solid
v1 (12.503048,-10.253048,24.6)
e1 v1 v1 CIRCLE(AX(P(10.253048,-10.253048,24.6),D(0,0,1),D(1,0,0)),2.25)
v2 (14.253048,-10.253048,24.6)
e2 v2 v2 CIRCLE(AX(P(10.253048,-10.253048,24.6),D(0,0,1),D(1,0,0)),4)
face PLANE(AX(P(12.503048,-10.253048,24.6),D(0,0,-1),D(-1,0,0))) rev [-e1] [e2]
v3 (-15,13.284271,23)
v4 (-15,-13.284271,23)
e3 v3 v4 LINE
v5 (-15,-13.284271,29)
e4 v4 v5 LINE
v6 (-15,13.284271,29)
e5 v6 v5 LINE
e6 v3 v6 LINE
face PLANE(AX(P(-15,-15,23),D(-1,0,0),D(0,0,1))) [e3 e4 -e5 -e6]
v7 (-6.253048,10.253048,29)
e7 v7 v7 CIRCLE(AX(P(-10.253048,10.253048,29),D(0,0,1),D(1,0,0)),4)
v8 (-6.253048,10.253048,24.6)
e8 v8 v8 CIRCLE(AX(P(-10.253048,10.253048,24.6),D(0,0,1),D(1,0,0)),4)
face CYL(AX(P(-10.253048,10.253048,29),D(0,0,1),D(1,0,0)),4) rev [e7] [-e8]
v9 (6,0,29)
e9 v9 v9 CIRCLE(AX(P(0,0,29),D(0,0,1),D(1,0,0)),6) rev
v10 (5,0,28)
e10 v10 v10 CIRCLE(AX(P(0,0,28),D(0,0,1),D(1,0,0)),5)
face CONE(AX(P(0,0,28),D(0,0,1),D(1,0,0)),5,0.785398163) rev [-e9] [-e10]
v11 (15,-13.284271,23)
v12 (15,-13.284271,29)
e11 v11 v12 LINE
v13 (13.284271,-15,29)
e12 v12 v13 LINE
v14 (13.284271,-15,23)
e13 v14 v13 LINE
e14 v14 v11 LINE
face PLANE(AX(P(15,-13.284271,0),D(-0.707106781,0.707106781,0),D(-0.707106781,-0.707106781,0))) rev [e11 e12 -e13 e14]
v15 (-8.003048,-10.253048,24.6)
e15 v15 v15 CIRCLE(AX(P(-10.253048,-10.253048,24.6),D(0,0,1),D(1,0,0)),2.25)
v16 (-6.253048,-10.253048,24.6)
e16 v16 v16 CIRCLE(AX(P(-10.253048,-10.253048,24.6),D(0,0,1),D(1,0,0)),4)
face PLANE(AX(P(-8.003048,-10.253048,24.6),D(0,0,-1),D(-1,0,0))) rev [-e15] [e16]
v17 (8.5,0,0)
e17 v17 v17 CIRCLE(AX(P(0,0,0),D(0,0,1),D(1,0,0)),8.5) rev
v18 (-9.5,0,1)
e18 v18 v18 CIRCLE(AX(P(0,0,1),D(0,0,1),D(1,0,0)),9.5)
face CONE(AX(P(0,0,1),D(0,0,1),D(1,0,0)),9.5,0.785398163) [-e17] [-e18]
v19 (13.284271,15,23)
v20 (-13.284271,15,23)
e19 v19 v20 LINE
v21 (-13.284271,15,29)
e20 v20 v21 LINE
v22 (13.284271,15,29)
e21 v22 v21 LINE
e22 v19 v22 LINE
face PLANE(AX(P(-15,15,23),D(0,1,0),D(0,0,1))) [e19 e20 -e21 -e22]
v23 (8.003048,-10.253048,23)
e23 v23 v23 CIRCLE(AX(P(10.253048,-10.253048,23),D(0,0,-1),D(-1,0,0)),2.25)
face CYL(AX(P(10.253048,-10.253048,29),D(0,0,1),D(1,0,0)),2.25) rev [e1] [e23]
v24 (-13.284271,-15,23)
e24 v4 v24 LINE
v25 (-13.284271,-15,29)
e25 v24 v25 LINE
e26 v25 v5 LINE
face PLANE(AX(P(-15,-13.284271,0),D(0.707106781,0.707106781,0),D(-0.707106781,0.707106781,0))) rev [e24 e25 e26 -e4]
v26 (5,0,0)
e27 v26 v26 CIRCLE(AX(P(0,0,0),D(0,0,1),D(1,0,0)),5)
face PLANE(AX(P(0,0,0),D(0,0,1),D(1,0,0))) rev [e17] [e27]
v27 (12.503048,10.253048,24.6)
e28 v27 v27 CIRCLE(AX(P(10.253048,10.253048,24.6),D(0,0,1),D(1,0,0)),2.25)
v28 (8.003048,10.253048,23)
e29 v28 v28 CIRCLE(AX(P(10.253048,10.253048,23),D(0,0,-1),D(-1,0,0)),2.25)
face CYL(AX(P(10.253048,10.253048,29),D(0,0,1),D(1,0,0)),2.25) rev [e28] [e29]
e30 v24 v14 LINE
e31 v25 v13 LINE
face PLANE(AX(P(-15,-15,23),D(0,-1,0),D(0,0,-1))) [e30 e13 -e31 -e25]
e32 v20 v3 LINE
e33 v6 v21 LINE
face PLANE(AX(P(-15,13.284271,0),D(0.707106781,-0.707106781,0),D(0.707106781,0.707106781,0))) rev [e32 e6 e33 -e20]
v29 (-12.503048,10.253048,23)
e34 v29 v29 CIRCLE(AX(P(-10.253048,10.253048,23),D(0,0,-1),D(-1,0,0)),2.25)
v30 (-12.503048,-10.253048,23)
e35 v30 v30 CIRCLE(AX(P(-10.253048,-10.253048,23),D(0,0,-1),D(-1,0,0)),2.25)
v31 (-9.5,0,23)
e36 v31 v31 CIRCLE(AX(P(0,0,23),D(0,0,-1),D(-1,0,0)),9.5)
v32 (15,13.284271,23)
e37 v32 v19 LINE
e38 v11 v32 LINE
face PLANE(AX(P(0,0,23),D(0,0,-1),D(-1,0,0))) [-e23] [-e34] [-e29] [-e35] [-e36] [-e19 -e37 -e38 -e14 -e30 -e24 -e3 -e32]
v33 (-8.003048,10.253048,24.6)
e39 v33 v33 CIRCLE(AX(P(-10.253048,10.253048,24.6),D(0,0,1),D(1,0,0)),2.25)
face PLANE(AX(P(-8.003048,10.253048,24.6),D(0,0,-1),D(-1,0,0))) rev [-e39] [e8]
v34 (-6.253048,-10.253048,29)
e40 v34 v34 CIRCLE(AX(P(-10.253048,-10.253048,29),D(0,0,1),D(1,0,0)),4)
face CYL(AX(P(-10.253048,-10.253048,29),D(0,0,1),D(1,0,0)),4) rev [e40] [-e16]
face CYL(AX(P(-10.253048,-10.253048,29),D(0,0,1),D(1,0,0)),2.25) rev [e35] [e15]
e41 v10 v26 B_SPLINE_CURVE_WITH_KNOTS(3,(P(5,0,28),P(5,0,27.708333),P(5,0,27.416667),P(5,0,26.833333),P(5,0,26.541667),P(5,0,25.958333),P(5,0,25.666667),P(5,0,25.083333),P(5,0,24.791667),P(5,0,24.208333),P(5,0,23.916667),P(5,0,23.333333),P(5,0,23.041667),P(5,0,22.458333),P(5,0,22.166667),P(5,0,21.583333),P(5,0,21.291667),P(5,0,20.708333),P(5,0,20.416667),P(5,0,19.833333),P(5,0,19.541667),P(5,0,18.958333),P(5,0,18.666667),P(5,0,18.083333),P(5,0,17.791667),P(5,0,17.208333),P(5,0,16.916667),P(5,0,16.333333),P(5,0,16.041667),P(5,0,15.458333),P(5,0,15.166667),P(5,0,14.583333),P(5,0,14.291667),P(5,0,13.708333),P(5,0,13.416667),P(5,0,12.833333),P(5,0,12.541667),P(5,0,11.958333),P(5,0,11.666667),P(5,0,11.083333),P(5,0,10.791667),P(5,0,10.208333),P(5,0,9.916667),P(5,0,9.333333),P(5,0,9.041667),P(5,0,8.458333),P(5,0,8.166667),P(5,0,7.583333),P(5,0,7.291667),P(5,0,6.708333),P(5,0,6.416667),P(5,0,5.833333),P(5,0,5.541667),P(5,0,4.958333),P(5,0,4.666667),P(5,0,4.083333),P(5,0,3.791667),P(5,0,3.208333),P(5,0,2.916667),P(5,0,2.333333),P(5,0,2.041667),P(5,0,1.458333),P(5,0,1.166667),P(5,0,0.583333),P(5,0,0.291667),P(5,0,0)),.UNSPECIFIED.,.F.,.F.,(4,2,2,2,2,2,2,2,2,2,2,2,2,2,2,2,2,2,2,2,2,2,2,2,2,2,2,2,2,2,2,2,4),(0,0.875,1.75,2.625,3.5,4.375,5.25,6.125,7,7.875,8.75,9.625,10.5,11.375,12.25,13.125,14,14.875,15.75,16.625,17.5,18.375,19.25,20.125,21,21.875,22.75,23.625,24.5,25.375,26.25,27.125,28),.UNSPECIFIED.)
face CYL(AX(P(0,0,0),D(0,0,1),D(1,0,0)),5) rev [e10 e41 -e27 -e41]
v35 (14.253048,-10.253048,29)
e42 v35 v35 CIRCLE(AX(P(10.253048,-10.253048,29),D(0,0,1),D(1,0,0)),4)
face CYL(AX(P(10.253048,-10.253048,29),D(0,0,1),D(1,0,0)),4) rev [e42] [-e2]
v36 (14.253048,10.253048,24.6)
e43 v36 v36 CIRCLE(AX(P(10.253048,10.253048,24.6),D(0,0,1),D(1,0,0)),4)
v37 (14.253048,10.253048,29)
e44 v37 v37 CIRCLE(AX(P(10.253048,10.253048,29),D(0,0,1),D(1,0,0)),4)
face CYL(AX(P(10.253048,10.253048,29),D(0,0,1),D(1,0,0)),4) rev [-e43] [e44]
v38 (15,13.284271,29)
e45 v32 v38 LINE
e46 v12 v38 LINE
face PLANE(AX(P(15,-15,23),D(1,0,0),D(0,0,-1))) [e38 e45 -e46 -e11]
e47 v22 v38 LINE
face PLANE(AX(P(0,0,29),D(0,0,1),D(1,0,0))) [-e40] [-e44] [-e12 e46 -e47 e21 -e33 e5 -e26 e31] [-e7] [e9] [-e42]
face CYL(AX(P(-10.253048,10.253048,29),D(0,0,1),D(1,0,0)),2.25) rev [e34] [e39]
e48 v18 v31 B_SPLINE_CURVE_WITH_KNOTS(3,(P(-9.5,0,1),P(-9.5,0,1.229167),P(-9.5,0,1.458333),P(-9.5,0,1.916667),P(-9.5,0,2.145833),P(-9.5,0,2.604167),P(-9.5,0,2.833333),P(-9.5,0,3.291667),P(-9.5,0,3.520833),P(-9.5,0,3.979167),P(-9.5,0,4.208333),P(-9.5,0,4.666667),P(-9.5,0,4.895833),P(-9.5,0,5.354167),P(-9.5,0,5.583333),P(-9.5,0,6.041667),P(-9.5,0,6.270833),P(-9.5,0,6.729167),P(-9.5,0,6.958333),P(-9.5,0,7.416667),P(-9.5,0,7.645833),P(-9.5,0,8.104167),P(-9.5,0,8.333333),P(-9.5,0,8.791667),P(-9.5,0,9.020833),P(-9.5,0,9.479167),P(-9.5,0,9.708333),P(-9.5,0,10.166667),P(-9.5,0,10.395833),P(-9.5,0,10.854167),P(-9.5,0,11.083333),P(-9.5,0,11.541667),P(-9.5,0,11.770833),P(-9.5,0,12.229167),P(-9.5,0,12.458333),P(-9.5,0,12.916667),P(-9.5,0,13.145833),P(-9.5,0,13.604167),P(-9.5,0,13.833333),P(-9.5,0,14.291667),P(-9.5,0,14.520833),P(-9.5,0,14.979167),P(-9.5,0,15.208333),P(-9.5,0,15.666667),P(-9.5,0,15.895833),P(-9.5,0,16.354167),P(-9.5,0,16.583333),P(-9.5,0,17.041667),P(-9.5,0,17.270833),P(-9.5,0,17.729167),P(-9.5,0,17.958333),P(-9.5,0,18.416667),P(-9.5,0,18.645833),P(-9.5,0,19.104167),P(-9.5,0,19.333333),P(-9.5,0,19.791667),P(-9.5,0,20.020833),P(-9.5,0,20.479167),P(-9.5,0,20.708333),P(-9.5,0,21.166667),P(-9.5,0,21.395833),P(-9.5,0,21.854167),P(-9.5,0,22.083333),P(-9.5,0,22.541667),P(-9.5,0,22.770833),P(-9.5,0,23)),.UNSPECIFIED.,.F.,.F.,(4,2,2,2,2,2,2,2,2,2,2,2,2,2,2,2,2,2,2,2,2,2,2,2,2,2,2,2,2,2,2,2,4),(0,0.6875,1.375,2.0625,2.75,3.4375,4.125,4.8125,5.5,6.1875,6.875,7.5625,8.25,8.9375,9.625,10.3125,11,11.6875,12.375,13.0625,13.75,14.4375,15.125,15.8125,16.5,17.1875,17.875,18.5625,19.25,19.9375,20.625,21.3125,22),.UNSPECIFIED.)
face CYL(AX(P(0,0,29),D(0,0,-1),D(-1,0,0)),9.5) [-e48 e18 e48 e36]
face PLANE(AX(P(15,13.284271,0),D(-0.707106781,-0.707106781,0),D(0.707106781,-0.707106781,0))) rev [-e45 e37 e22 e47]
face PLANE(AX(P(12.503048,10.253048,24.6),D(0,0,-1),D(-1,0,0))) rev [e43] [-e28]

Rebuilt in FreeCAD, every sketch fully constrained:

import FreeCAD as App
import Part
import Sketcher


def edges_at(feature, points):
    """Names of the edges that pass closest to the given points."""
    edges = feature.Shape.Edges
    near = lambda p: min(range(len(edges)), key=lambda i: edges[i].distToShape(Part.Vertex(*p))[0])
    return sorted({f"Edge{near(p) + 1}" for p in points})


def add_polygon(sketch, points):
    """Adds a closed chain of lines whose ends are joined by coincident constraints."""
    first, n = sketch.GeometryCount, len(points)
    for a, b in zip(points, points[1:] + points[:1]):
        sketch.addGeometry(Part.LineSegment(App.Vector(*a, 0), App.Vector(*b, 0)), False)
    for i in range(n):
        sketch.addConstraint(Sketcher.Constraint("Coincident", first + i, 2, first + (i + 1) % n, 1))

doc = App.newDocument("Part")
params = doc.addObject("Spreadsheet::Sheet", "Params")
for row, (alias, value) in enumerate([
    ("sketch1_diameter", "19 mm"),
    ("pad1_length", "29 mm"),
    ("sketch2_width", "30 mm"),
    ("pad2_length", "6 mm"),
    ("sketch4_diameter", "4.5 mm"),
    ("hole_diameter", "4.5 mm"),
    ("hole_depth", "22 mm"),
    ("hole_cbore_diameter", "8 mm"),
    ("hole_cbore_depth", "4.4 mm"),
    ("sketch5_diameter", "10 mm"),
    ("chamfer_size", "1 mm"),
], start=1):
    params.set(f"A{row}", alias)
    params.set(f"B{row}", "=" + value)
    params.setAlias(f"B{row}", alias)

body = doc.addObject("PartDesign::Body", "Body")

# Sketch on XY plane
sketch1 = body.newObject("Sketcher::SketchObject", "Sketch")
sketch1.AttachmentSupport = (doc.getObject("XY_Plane"), [""])
sketch1.MapMode = "FlatFace"
sketch1.addGeometry(Part.Circle(App.Vector(0, 0, 0), App.Vector(0, 0, 1), 10), False)
sketch1.addConstraint([
    Sketcher.Constraint("Coincident", 0, 3, -1, 1),
    Sketcher.Constraint("Diameter", 0, 19.0),
])
sketch1.setExpression("Constraints[1]", "Params.sketch1_diameter")
pad1 = body.newObject("PartDesign::Pad", "Pad")
pad1.Profile = sketch1
pad1.setExpression("Length", "Params.pad1_length")

# Sketch on XY plane
sketch2 = body.newObject("Sketcher::SketchObject", "Sketch001")
sketch2.AttachmentSupport = (doc.getObject("XY_Plane"), [""])
sketch2.MapMode = "FlatFace"
sketch2.AttachmentOffset = App.Placement(App.Vector(0, 0, 29), App.Rotation())
add_polygon(sketch2, [(-15, 15), (-15, -15), (15, -15), (15, 15)])  # lines 0-3
sketch2.addConstraint([
    Sketcher.Constraint("Vertical", 0),
    Sketcher.Constraint("Horizontal", 1),
    Sketcher.Constraint("Vertical", 2),
    Sketcher.Constraint("Horizontal", 3),
    Sketcher.Constraint("Symmetric", 0, 2, 2, 2, -1, 1),
    Sketcher.Constraint("Equal", 3, 0),
    Sketcher.Constraint("DistanceX", 1, 1, 1, 2, 30.0),
])
sketch2.setExpression("Constraints[10]", "Params.sketch2_width")
pad2 = body.newObject("PartDesign::Pad", "Pad001")
pad2.Profile = sketch2
pad2.setExpression("Length", "Params.pad2_length")
pad2.Reversed = True

# Sketch on XY plane
sketch3 = body.newObject("Sketcher::SketchObject", "Sketch002")
sketch3.AttachmentSupport = (doc.getObject("XY_Plane"), [""])
sketch3.MapMode = "FlatFace"
sketch3.AttachmentOffset = App.Placement(App.Vector(0, 0, 29), App.Rotation())
add_polygon(sketch3, [(-15, 15), (-15, 13.3), (-13.3, 15)])  # lines 0-2
add_polygon(sketch3, [(15, 15), (13.3, 15), (15, 13.3)])  # lines 3-5
add_polygon(sketch3, [(15, -15), (15, -13.3), (13.3, -15)])  # lines 6-8
add_polygon(sketch3, [(-15, -15), (-13.3, -15), (-15, -13.3)])  # lines 9-11
sketch3.addConstraint([
    Sketcher.Constraint("Vertical", 0),
    Sketcher.Constraint("Horizontal", 2),
    Sketcher.Constraint("Horizontal", 3),
    Sketcher.Constraint("Vertical", 5),
    Sketcher.Constraint("Vertical", 6),
    Sketcher.Constraint("Horizontal", 8),
    Sketcher.Constraint("Horizontal", 9),
    Sketcher.Constraint("Vertical", 11),
    Sketcher.Constraint("Symmetric", 0, 2, 6, 2, -1, 1),
    Sketcher.Constraint("Symmetric", 1, 2, 7, 2, -1, 1),
    Sketcher.Constraint("Symmetric", 3, 2, 9, 2, -1, 1),
    Sketcher.Constraint("Symmetric", 4, 2, 10, 2, -1, 1),
    Sketcher.Constraint("Symmetric", 1, 2, 3, 2, -2),
    Sketcher.Constraint("Symmetric", 0, 2, 4, 2, -2),
    Sketcher.Constraint("Perpendicular", 1, 4),
    Sketcher.Constraint("DistanceX", 0, 2, -1, 1, 15.0),
    Sketcher.Constraint("DistanceY", -1, 1, 1, 2, 15.0),
    Sketcher.Constraint("DistanceX", 2, 2, 2, 1, 1.715729),
])
pocket1 = body.newObject("PartDesign::Pocket", "Pocket")
pocket1.Profile = sketch3
pocket1.Type = "ThroughAll"

# Sketch on XY plane
sketch4 = body.newObject("Sketcher::SketchObject", "Sketch003")
sketch4.AttachmentSupport = (doc.getObject("XY_Plane"), [""])
sketch4.MapMode = "FlatFace"
sketch4.AttachmentOffset = App.Placement(App.Vector(0, 0, 29), App.Rotation())
sketch4.addGeometry([
    Part.Circle(App.Vector(-10.3, 10.3, 0), App.Vector(0, 0, 1), 2.2),
    Part.Circle(App.Vector(10.3, 10.3, 0), App.Vector(0, 0, 1), 2.2),
    Part.Circle(App.Vector(10.3, -10.3, 0), App.Vector(0, 0, 1), 2.2),
    Part.Circle(App.Vector(-10.3, -10.3, 0), App.Vector(0, 0, 1), 2.2),
], False)
sketch4.addConstraint([
    Sketcher.Constraint("Equal", 0, 1),
    Sketcher.Constraint("Equal", 1, 2),
    Sketcher.Constraint("Equal", 2, 3),
    Sketcher.Constraint("Symmetric", 0, 3, 2, 3, -1, 1),
    Sketcher.Constraint("Symmetric", 1, 3, 3, 3, -1, 1),
    Sketcher.Constraint("Symmetric", 0, 3, 1, 3, -2),
    Sketcher.Constraint("Diameter", 0, 4.5),
    Sketcher.Constraint("DistanceX", 0, 3, -1, 1, 10.253048),
    Sketcher.Constraint("DistanceY", -1, 1, 0, 3, 10.253048),
])
sketch4.setExpression("Constraints[6]", "Params.sketch4_diameter")
doc.recompute()
hole = body.newObject("PartDesign::Hole", "Hole")
hole.Profile = sketch4
hole.ThreadType = "None"
hole.setExpression("Diameter", "Params.hole_diameter")
hole.DepthType = "Dimension"
hole.setExpression("Depth", "Params.hole_depth")
hole.DrillPoint = "Angled"
hole.DrillPointAngle = 118
hole.HoleCutType = "Counterbore"
hole.setExpression("HoleCutDiameter", "Params.hole_cbore_diameter")
hole.setExpression("HoleCutDepth", "Params.hole_cbore_depth")

# Sketch on XY plane
sketch5 = body.newObject("Sketcher::SketchObject", "Sketch004")
sketch5.AttachmentSupport = (doc.getObject("XY_Plane"), [""])
sketch5.MapMode = "FlatFace"
sketch5.AttachmentOffset = App.Placement(App.Vector(0, 0, 29), App.Rotation())
sketch5.addGeometry(Part.Circle(App.Vector(0, 0, 0), App.Vector(0, 0, 1), 5), False)
sketch5.addConstraint([
    Sketcher.Constraint("Coincident", 0, 3, -1, 1),
    Sketcher.Constraint("Diameter", 0, 10.0),
])
sketch5.setExpression("Constraints[1]", "Params.sketch5_diameter")
pocket2 = body.newObject("PartDesign::Pocket", "Pocket001")
pocket2.Profile = sketch5
pocket2.Type = "ThroughAll"
doc.recompute()

chamfer = body.newObject("PartDesign::Chamfer", "Chamfer")
chamfer.Base = (pocket2, edges_at(pocket2, [(-5, 0, 29), (9.5, 0, 0)]))
chamfer.setExpression("Size", "Params.chamfer_size")

doc.recompute()
